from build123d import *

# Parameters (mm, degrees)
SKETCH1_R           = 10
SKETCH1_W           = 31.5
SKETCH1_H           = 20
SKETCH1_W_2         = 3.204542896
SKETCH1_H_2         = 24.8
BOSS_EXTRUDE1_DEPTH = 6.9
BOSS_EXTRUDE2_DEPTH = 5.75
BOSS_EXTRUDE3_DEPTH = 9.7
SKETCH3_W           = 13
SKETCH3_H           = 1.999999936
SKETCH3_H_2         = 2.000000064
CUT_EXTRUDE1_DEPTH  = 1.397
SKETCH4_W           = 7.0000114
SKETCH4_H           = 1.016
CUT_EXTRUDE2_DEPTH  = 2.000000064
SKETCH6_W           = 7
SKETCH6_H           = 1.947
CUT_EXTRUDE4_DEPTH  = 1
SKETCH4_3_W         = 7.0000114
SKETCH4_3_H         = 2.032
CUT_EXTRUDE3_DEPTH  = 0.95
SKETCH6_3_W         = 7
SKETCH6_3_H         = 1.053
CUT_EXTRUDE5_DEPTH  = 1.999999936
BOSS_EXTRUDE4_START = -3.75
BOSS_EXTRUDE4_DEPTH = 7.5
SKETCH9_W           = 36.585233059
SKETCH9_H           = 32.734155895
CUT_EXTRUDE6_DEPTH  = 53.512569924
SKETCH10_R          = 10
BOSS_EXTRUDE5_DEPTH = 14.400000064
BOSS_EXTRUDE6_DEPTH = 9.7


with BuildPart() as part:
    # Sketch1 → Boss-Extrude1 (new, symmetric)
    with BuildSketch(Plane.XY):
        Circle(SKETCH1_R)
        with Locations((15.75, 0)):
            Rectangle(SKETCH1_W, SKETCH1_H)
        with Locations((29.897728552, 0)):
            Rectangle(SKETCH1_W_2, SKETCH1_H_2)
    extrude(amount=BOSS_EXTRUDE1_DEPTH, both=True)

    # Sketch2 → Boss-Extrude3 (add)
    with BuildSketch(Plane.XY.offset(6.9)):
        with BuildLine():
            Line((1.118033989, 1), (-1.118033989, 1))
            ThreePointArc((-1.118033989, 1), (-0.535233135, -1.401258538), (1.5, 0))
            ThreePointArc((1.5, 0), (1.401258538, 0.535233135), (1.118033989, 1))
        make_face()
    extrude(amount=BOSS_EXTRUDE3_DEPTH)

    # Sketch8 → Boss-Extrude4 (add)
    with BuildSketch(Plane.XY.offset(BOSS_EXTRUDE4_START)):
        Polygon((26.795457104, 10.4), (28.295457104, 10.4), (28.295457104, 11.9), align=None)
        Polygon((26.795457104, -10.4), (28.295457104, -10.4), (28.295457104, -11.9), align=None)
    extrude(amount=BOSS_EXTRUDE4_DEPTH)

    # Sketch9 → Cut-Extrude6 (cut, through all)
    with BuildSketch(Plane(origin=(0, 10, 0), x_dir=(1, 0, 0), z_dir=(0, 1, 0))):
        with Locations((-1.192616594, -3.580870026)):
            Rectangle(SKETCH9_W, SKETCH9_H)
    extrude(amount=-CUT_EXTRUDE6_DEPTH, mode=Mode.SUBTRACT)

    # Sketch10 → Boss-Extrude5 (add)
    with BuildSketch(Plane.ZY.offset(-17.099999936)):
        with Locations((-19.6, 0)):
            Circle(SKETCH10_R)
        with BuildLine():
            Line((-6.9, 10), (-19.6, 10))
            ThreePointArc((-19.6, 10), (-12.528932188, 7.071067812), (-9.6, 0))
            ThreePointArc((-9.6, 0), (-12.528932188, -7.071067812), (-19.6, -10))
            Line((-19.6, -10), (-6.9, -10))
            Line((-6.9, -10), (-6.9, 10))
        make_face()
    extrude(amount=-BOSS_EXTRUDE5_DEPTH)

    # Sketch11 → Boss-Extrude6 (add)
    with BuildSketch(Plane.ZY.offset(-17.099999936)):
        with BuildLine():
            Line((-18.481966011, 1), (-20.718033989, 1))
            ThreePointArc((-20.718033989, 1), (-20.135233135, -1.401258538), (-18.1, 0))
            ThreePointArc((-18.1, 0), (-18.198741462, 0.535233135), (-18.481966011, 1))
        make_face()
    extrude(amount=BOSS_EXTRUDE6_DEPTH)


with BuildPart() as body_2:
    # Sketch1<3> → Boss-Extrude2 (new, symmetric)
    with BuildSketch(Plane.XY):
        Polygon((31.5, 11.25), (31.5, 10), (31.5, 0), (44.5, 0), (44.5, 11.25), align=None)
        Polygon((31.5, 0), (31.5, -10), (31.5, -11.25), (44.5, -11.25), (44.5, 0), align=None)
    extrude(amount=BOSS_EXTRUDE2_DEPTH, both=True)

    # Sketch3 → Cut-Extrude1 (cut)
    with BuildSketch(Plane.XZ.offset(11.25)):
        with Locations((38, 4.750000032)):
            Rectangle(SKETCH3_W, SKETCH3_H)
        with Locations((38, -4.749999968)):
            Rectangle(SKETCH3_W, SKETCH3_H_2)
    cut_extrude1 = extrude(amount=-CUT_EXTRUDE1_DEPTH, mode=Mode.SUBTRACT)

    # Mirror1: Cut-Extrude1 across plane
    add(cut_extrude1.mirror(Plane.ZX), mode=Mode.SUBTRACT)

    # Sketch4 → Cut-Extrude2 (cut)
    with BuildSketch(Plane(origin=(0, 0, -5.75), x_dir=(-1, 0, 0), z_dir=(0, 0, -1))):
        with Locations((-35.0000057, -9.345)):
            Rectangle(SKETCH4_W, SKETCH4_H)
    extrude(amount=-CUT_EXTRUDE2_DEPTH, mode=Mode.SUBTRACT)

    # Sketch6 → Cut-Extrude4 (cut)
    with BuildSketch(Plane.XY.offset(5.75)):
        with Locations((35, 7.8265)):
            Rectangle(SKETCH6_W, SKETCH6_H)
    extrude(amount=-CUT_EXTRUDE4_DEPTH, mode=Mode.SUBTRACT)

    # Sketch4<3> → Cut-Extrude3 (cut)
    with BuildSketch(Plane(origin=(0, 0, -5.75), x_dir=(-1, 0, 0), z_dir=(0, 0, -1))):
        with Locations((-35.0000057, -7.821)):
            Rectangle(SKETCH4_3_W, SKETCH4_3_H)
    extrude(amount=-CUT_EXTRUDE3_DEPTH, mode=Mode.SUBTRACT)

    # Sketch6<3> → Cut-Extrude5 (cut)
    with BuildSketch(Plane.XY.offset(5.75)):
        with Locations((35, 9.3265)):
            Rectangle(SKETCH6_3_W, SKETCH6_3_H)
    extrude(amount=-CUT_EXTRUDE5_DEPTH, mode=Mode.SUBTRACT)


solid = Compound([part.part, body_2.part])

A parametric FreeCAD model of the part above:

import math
import FreeCAD as App
import Part
import Sketcher

V = App.Vector
Q = App.Units.Quantity

doc = App.newDocument("Part")
params = doc.addObject("Spreadsheet::Sheet", "Params")
for row, (alias, value) in enumerate([
    ("sketch1_radius", "10 mm"),
    ("sketch1_height", "2.4 mm"),
    ("pad1_length", "13.8 mm"),
    ("sketch2_radius", "1.5 mm"),
    ("pad2_length", "9.7 mm"),
    ("sketch3_width", "1.5 mm"),
    ("pad3_length", "7.5 mm"),
    ("sketch5_radius", "10 mm"),
    ("sketch5_height", "12.7 mm"),
    ("pad4_length", "14.4 mm"),
    ("sketch6_radius", "1.5 mm"),
    ("pad5_length", "9.7 mm"),
    ("sketch7_width", "13 mm"),
    ("sketch7_height", "22.5 mm"),
    ("pad6_length", "11.5 mm"),
    ("sketch8_width", "13 mm"),
    ("sketch8_height", "2 mm"),
    ("pocket2_length", "1.397 mm"),
    ("pocket3_length", "2 mm"),
    ("sketch10_width", "7 mm"),
    ("pocket4_length", "1 mm"),
    ("pocket5_length", "0.95 mm"),
    ("sketch12_width", "7 mm"),
    ("pocket6_length", "2 mm"),
], start=1):
    params.set(f"A{row}", alias)
    params.set(f"B{row}", "=" + value)
    params.setAlias(f"B{row}", alias)

body = doc.addObject("PartDesign::Body", "Body")

# Sketch on XY plane
sketch1 = doc.addObject("Sketcher::SketchObject", "Sketch")
body.addObject(sketch1)
sketch1.AttachmentSupport = (doc.XY_Plane, [""])
sketch1.MapMode = "FlatFace"
sketch1.addGeometry([
    Part.ArcOfCircle(Part.Circle(V(0, 0, 0), V(0, 0, 1), 10), math.radians(90), math.radians(270)),  # 0
    Part.LineSegment(V(0, -10, 0), V(28.3, -10, 0)),  # 1
    Part.LineSegment(V(28.3, -10, 0), V(28.3, -12.4, 0)),  # 2
    Part.LineSegment(V(28.3, -12.4, 0), V(31.5, -12.4, 0)),  # 3
    Part.LineSegment(V(31.5, -12.4, 0), V(31.5, 12.4, 0)),  # 4
    Part.LineSegment(V(31.5, 12.4, 0), V(28.3, 12.4, 0)),  # 5
    Part.LineSegment(V(28.3, 12.4, 0), V(28.3, 10, 0)),  # 6
    Part.LineSegment(V(28.3, 10, 0), V(0, 10, 0)),  # 7
], False)
sketch1.addConstraint([
    Sketcher.Constraint("Tangent", 0, 2, 1, 1),
    Sketcher.Constraint("Coincident", 1, 2, 2, 1),
    Sketcher.Constraint("Coincident", 2, 2, 3, 1),
    Sketcher.Constraint("Coincident", 3, 2, 4, 1),
    Sketcher.Constraint("Coincident", 4, 2, 5, 1),
    Sketcher.Constraint("Coincident", 5, 2, 6, 1),
    Sketcher.Constraint("Coincident", 6, 2, 7, 1),
    Sketcher.Constraint("Tangent", 7, 2, 0, 1),
    Sketcher.Constraint("Horizontal", 1),
    Sketcher.Constraint("Vertical", 2),
    Sketcher.Constraint("Horizontal", 3),
    Sketcher.Constraint("Vertical", 4),
    Sketcher.Constraint("Horizontal", 5),
    Sketcher.Constraint("Vertical", 6),
    Sketcher.Constraint("Horizontal", 7),
    Sketcher.Constraint("Coincident", 0, 3, -1, 1),
    Sketcher.Constraint("Symmetric", 2, 2, 5, 2, -1),
    Sketcher.Constraint("Radius", 0, Q("10 mm")),
    Sketcher.Constraint("DistanceY", 2, 2, 2, 1, Q("2.4 mm")),
    Sketcher.Constraint("DistanceX", -1, 1, 3, 2, Q("31.5 mm")),
    Sketcher.Constraint("DistanceX", 1, 1, 1, 2, Q("28.295457 mm")),
])
sketch1.setExpression("Constraints[17]", "Params.sketch1_radius")
sketch1.setExpression("Constraints[18]", "Params.sketch1_height")
pad1 = doc.addObject("PartDesign::Pad", "Pad")
body.addObject(pad1)
pad1.Profile = sketch1
pad1.setExpression("Length", "Params.pad1_length")
pad1.Midplane = True

# Sketch on XY plane
sketch2 = doc.addObject("Sketcher::SketchObject", "Sketch001")
body.addObject(sketch2)
sketch2.AttachmentSupport = (doc.XY_Plane, [""])
sketch2.MapMode = "FlatFace"
sketch2.AttachmentOffset = App.Placement(V(0, 0, 6.9), App.Rotation())
sketch2.addGeometry([
    Part.LineSegment(V(1.1, 1, 0), V(-1.1, 1, 0)),
    Part.ArcOfCircle(Part.Circle(V(0, 0, 0), V(0, 0, 1), 1.5), math.radians(138), math.radians(360)),
    Part.ArcOfCircle(Part.Circle(V(0, 0, 0), V(0, 0, 1), 1.5), math.radians(0), math.radians(42)),
], False)
sketch2.addConstraint([
    Sketcher.Constraint("Coincident", 0, 2, 1, 1),
    Sketcher.Constraint("Tangent", 1, 2, 2, 1),
    Sketcher.Constraint("Coincident", 2, 2, 0, 1),
    Sketcher.Constraint("Horizontal", 0),
    Sketcher.Constraint("Coincident", 1, 3, -1, 1),
    Sketcher.Constraint("Equal", 1, 2),
    Sketcher.Constraint("PointOnObject", 1, 2, -1),
    Sketcher.Constraint("Radius", 1, Q("1.5 mm")),
    Sketcher.Constraint("DistanceY", -1, 1, 0, 2, Q("1 mm")),
])
sketch2.setExpression("Constraints[7]", "Params.sketch2_radius")
pad2 = doc.addObject("PartDesign::Pad", "Pad001")
body.addObject(pad2)
pad2.Profile = sketch2
pad2.setExpression("Length", "Params.pad2_length")

# Sketch on XY plane
sketch3 = doc.addObject("Sketcher::SketchObject", "Sketch002")
body.addObject(sketch3)
sketch3.AttachmentSupport = (doc.XY_Plane, [""])
sketch3.MapMode = "FlatFace"
sketch3.AttachmentOffset = App.Placement(V(0, 0, -3.75), App.Rotation())
sketch3.addGeometry([
    Part.LineSegment(V(26.8, 10.4, 0), V(28.3, 10.4, 0)),  # 0
    Part.LineSegment(V(28.3, 10.4, 0), V(28.3, 11.9, 0)),  # 1
    Part.LineSegment(V(28.3, 11.9, 0), V(26.8, 10.4, 0)),  # 2
    Part.LineSegment(V(28.3, -10.4, 0), V(26.8, -10.4, 0)),  # 3
    Part.LineSegment(V(26.8, -10.4, 0), V(28.3, -11.9, 0)),  # 4
    Part.LineSegment(V(28.3, -11.9, 0), V(28.3, -10.4, 0)),  # 5
], False)
sketch3.addConstraint([
    Sketcher.Constraint("Coincident", 0, 2, 1, 1),
    Sketcher.Constraint("Coincident", 1, 2, 2, 1),
    Sketcher.Constraint("Coincident", 2, 2, 0, 1),
    Sketcher.Constraint("Coincident", 3, 2, 4, 1),
    Sketcher.Constraint("Coincident", 4, 2, 5, 1),
    Sketcher.Constraint("Coincident", 5, 2, 3, 1),
    Sketcher.Constraint("Horizontal", 0),
    Sketcher.Constraint("Vertical", 1),
    Sketcher.Constraint("Horizontal", 3),
    Sketcher.Constraint("Vertical", 5),
    Sketcher.Constraint("Symmetric", 2, 2, 3, 2, -1),
    Sketcher.Constraint("Symmetric", 1, 2, 4, 2, -1),
    Sketcher.Constraint("Perpendicular", 2, 4),
    Sketcher.Constraint("DistanceX", 0, 1, 0, 2, Q("1.5 mm")),
    Sketcher.Constraint("DistanceY", -1, 1, 0, 2, Q("10.4 mm")),
    Sketcher.Constraint("DistanceX", -1, 1, 0, 2, Q("28.295457 mm")),
])
sketch3.setExpression("Constraints[13]", "Params.sketch3_width")
pad3 = doc.addObject("PartDesign::Pad", "Pad002")
body.addObject(pad3)
pad3.Profile = sketch3
pad3.setExpression("Length", "Params.pad3_length")

# Sketch on XZ plane
sketch4 = doc.addObject("Sketcher::SketchObject", "Sketch003")
body.addObject(sketch4)
sketch4.AttachmentSupport = (doc.XZ_Plane, [""])
sketch4.MapMode = "FlatFace"
sketch4.AttachmentOffset = App.Placement(V(0, 0, -10), App.Rotation())
sketch4.addGeometry([
    Part.LineSegment(V(-19, -13, 0), V(-19, 20, 0)),
    Part.LineSegment(V(-19, 20, 0), V(17, 20, 0)),
    Part.LineSegment(V(17, 20, 0), V(17, -13, 0)),
    Part.LineSegment(V(17, -13, 0), V(-19, -13, 0)),
], False)
sketch4.addConstraint([
    Sketcher.Constraint("Coincident", 0, 2, 1, 1),
    Sketcher.Constraint("Coincident", 1, 2, 2, 1),
    Sketcher.Constraint("Coincident", 2, 2, 3, 1),
    Sketcher.Constraint("Coincident", 3, 2, 0, 1),
    Sketcher.Constraint("Vertical", 0),
    Sketcher.Constraint("Horizontal", 1),
    Sketcher.Constraint("Vertical", 2),
    Sketcher.Constraint("Horizontal", 3),
    Sketcher.Constraint("DistanceX", -1, 1, 1, 2, Q("17.1 mm")),
    Sketcher.Constraint("DistanceX", 1, 1, 1, 2, Q("36.585233 mm")),
    Sketcher.Constraint("DistanceY", 0, 1, 0, 2, Q("32.734156 mm")),
    Sketcher.Constraint("DistanceY", -1, 1, 0, 2, Q("19.947948 mm")),
])
pocket1 = doc.addObject("PartDesign::Pocket", "Pocket")
body.addObject(pocket1)
pocket1.Profile = sketch4
pocket1.Type = "ThroughAll"
pocket1.Reversed = True

# Sketch on YZ plane
sketch5 = doc.addObject("Sketcher::SketchObject", "Sketch004")
body.addObject(sketch5)
sketch5.AttachmentSupport = (doc.YZ_Plane, [""])
sketch5.MapMode = "FlatFace"
sketch5.AttachmentOffset = App.Placement(V(0, 0, 17.1), App.Rotation())
sketch5.addGeometry([
    Part.ArcOfCircle(Part.Circle(V(0, -20, 0), V(0, 0, 1), 10), math.radians(180), math.radians(360)),
    Part.LineSegment(V(-10, -20, 0), V(-10, -7, 0)),
    Part.LineSegment(V(-10, -7, 0), V(10, -7, 0)),
    Part.LineSegment(V(10, -7, 0), V(10, -20, 0)),
], False)
sketch5.addConstraint([
    Sketcher.Constraint("Tangent", 0, 1, 1, 1),
    Sketcher.Constraint("Coincident", 1, 2, 2, 1),
    Sketcher.Constraint("Coincident", 2, 2, 3, 1),
    Sketcher.Constraint("Tangent", 3, 2, 0, 2),
    Sketcher.Constraint("Vertical", 1),
    Sketcher.Constraint("Horizontal", 2),
    Sketcher.Constraint("Vertical", 3),
    Sketcher.Constraint("PointOnObject", 0, 3, -2),
    Sketcher.Constraint("Radius", 0, Q("10 mm")),
    Sketcher.Constraint("DistanceY", 1, 1, 1, 2, Q("12.7 mm")),
    Sketcher.Constraint("DistanceY", 0, 3, -1, 1, Q("19.6 mm")),
])
sketch5.setExpression("Constraints[8]", "Params.sketch5_radius")
sketch5.setExpression("Constraints[9]", "Params.sketch5_height")
pad4 = doc.addObject("PartDesign::Pad", "Pad003")
body.addObject(pad4)
pad4.Profile = sketch5
pad4.setExpression("Length", "Params.pad4_length")

# Sketch on YZ plane
sketch6 = doc.addObject("Sketcher::SketchObject", "Sketch005")
body.addObject(sketch6)
sketch6.AttachmentSupport = (doc.YZ_Plane, [""])
sketch6.MapMode = "FlatFace"
sketch6.AttachmentOffset = App.Placement(V(0, 0, 17.1), App.Rotation())
sketch6.addGeometry([
    Part.LineSegment(V(1, -18.5, 0), V(1, -20.7, 0)),
    Part.ArcOfCircle(Part.Circle(V(0, -19.6, 0), V(0, 0, 1), 1.5), math.radians(90), math.radians(312)),
    Part.ArcOfCircle(Part.Circle(V(0, -19.6, 0), V(0, 0, 1), 1.5), math.radians(48), math.radians(90)),
], False)
sketch6.addConstraint([
    Sketcher.Constraint("Coincident", 0, 2, 1, 2),
    Sketcher.Constraint("Tangent", 1, 1, 2, 2),
    Sketcher.Constraint("Coincident", 2, 1, 0, 1),
    Sketcher.Constraint("Vertical", 0),
    Sketcher.Constraint("Equal", 1, 2),
    Sketcher.Constraint("PointOnObject", 1, 3, -2),
    Sketcher.Constraint("PointOnObject", 1, 1, -2),
    Sketcher.Constraint("Radius", 1, Q("1.5 mm")),
    Sketcher.Constraint("DistanceX", -1, 1, 0, 2, Q("1 mm")),
    Sketcher.Constraint("DistanceY", 1, 3, -1, 1, Q("19.6 mm")),
])
sketch6.setExpression("Constraints[7]", "Params.sketch6_radius")
pad5 = doc.addObject("PartDesign::Pad", "Pad004")
body.addObject(pad5)
pad5.Profile = sketch6
pad5.setExpression("Length", "Params.pad5_length")
pad5.Reversed = True
body2 = doc.addObject("PartDesign::Body", "Body001")

# Sketch on XY plane
sketch7 = doc.addObject("Sketcher::SketchObject", "Sketch006")
body2.addObject(sketch7)
sketch7.AttachmentSupport = (doc.getObject("XY_Plane001"), [""])
sketch7.MapMode = "FlatFace"
sketch7.addGeometry([
    Part.LineSegment(V(32, 11, 0), V(32, -11, 0)),
    Part.LineSegment(V(32, -11, 0), V(44, -11, 0)),
    Part.LineSegment(V(44, -11, 0), V(44, 11, 0)),
    Part.LineSegment(V(44, 11, 0), V(32, 11, 0)),
], False)
sketch7.addConstraint([
    Sketcher.Constraint("Coincident", 0, 2, 1, 1),
    Sketcher.Constraint("Coincident", 1, 2, 2, 1),
    Sketcher.Constraint("Coincident", 2, 2, 3, 1),
    Sketcher.Constraint("Coincident", 3, 2, 0, 1),
    Sketcher.Constraint("Vertical", 0),
    Sketcher.Constraint("Horizontal", 1),
    Sketcher.Constraint("Vertical", 2),
    Sketcher.Constraint("Horizontal", 3),
    Sketcher.Constraint("DistanceX", 1, 1, 1, 2, Q("13 mm")),
    Sketcher.Constraint("DistanceY", 0, 2, 0, 1, Q("22.5 mm")),
    Sketcher.Constraint("DistanceX", -1, 1, 0, 2, Q("31.5 mm")),
    Sketcher.Constraint("DistanceY", 0, 2, -1, 1, Q("11.25 mm")),
])
sketch7.setExpression("Constraints[8]", "Params.sketch7_width")
sketch7.setExpression("Constraints[9]", "Params.sketch7_height")
pad6 = doc.addObject("PartDesign::Pad", "Pad005")
body2.addObject(pad6)
pad6.Profile = sketch7
pad6.setExpression("Length", "Params.pad6_length")
pad6.Midplane = True

# Sketch on XZ plane
sketch8 = doc.addObject("Sketcher::SketchObject", "Sketch007")
body2.addObject(sketch8)
sketch8.AttachmentSupport = (doc.getObject("XZ_Plane001"), [""])
sketch8.MapMode = "FlatFace"
sketch8.AttachmentOffset = App.Placement(V(0, 0, 11.25), App.Rotation())
sketch8.addGeometry([
    Part.LineSegment(V(31.5, 5.8, 0), V(31.5, 3.8, 0)),  # 0
    Part.LineSegment(V(31.5, 3.8, 0), V(44.5, 3.8, 0)),  # 1
    Part.LineSegment(V(44.5, 3.8, 0), V(44.5, 5.8, 0)),  # 2
    Part.LineSegment(V(44.5, 5.8, 0), V(31.5, 5.8, 0)),  # 3
    Part.LineSegment(V(31.5, -3.7, 0), V(31.5, -5.8, 0)),  # 4
    Part.LineSegment(V(31.5, -5.8, 0), V(44.5, -5.8, 0)),  # 5
    Part.LineSegment(V(44.5, -5.8, 0), V(44.5, -3.7, 0)),  # 6
    Part.LineSegment(V(44.5, -3.7, 0), V(31.5, -3.7, 0)),  # 7
], False)
sketch8.addConstraint([
    Sketcher.Constraint("Coincident", 0, 2, 1, 1),
    Sketcher.Constraint("Coincident", 1, 2, 2, 1),
    Sketcher.Constraint("Coincident", 2, 2, 3, 1),
    Sketcher.Constraint("Coincident", 3, 2, 0, 1),
    Sketcher.Constraint("Coincident", 4, 2, 5, 1),
    Sketcher.Constraint("Coincident", 5, 2, 6, 1),
    Sketcher.Constraint("Coincident", 6, 2, 7, 1),
    Sketcher.Constraint("Coincident", 7, 2, 4, 1),
    Sketcher.Constraint("Vertical", 0),
    Sketcher.Constraint("Horizontal", 1),
    Sketcher.Constraint("Vertical", 2),
    Sketcher.Constraint("Horizontal", 3),
    Sketcher.Constraint("Vertical", 4),
    Sketcher.Constraint("Horizontal", 5),
    Sketcher.Constraint("Vertical", 6),
    Sketcher.Constraint("Horizontal", 7),
    Sketcher.Constraint("Symmetric", 3, 2, 4, 2, -1),
    Sketcher.Constraint("Symmetric", 1, 2, 6, 2, -1),
    Sketcher.Constraint("DistanceX", 1, 1, 1, 2, Q("13 mm")),
    Sketcher.Constraint("DistanceY", 0, 2, 0, 1, Q("2 mm")),
    Sketcher.Constraint("DistanceX", -1, 1, 0, 2, Q("31.5 mm")),
    Sketcher.Constraint("DistanceY", 4, 2, 0, 2, Q("9.5 mm")),
])
sketch8.setExpression("Constraints[18]", "Params.sketch8_width")
sketch8.setExpression("Constraints[19]", "Params.sketch8_height")
pocket2 = doc.addObject("PartDesign::Pocket", "Pocket001")
body2.addObject(pocket2)
pocket2.Profile = sketch8
pocket2.setExpression("Length", "Params.pocket2_length")
doc.recompute()

mirrored = doc.addObject("PartDesign::Mirrored", "Mirrored")
body2.addObject(mirrored)
mirrored.Originals = [pocket2]
mirrored.MirrorPlane = (doc.getObject("XZ_Plane001"), [""])
body2.Tip = mirrored

# Sketch on XY plane
sketch9 = doc.addObject("Sketcher::SketchObject", "Sketch008")
body2.addObject(sketch9)
sketch9.AttachmentSupport = (doc.getObject("XY_Plane001"), [""])
sketch9.MapMode = "FlatFace"
sketch9.AttachmentOffset = App.Placement(V(0, 0, -5.75), App.Rotation())
sketch9.addGeometry([
    Part.LineSegment(V(38.5, -8.8, 0), V(38.5, -9.9, 0)),
    Part.LineSegment(V(38.5, -9.9, 0), V(31.5, -9.9, 0)),
    Part.LineSegment(V(31.5, -9.9, 0), V(31.5, -8.8, 0)),
    Part.LineSegment(V(31.5, -8.8, 0), V(38.5, -8.8, 0)),
], False)
sketch9.addConstraint([
    Sketcher.Constraint("Coincident", 0, 2, 1, 1),
    Sketcher.Constraint("Coincident", 1, 2, 2, 1),
    Sketcher.Constraint("Coincident", 2, 2, 3, 1),
    Sketcher.Constraint("Coincident", 3, 2, 0, 1),
    Sketcher.Constraint("Vertical", 0),
    Sketcher.Constraint("Horizontal", 1),
    Sketcher.Constraint("Vertical", 2),
    Sketcher.Constraint("Horizontal", 3),
    Sketcher.Constraint("DistanceX", -1, 1, 1, 2, Q("31.5 mm")),
    Sketcher.Constraint("DistanceY", 0, 2, 0, 1, Q("1.016 mm")),
    Sketcher.Constraint("DistanceY", 0, 2, -1, 1, Q("9.853 mm")),
    Sketcher.Constraint("DistanceX", 1, 2, 1, 1, Q("7.000011 mm")),
])
pocket3 = doc.addObject("PartDesign::Pocket", "Pocket002")
body2.addObject(pocket3)
pocket3.Profile = sketch9
pocket3.setExpression("Length", "Params.pocket3_length")
pocket3.Reversed = True

# Sketch on XY plane
sketch10 = doc.addObject("Sketcher::SketchObject", "Sketch009")
body2.addObject(sketch10)
sketch10.AttachmentSupport = (doc.getObject("XY_Plane001"), [""])
sketch10.MapMode = "FlatFace"
sketch10.AttachmentOffset = App.Placement(V(0, 0, 5.75), App.Rotation())
sketch10.addGeometry([
    Part.LineSegment(V(31.5, 8.8, 0), V(31.5, 6.9, 0)),
    Part.LineSegment(V(31.5, 6.9, 0), V(38.5, 6.9, 0)),
    Part.LineSegment(V(38.5, 6.9, 0), V(38.5, 8.8, 0)),
    Part.LineSegment(V(38.5, 8.8, 0), V(31.5, 8.8, 0)),
], False)
sketch10.addConstraint([
    Sketcher.Constraint("Coincident", 0, 2, 1, 1),
    Sketcher.Constraint("Coincident", 1, 2, 2, 1),
    Sketcher.Constraint("Coincident", 2, 2, 3, 1),
    Sketcher.Constraint("Coincident", 3, 2, 0, 1),
    Sketcher.Constraint("Vertical", 0),
    Sketcher.Constraint("Horizontal", 1),
    Sketcher.Constraint("Vertical", 2),
    Sketcher.Constraint("Horizontal", 3),
    Sketcher.Constraint("DistanceX", 1, 1, 1, 2, Q("7 mm")),
    Sketcher.Constraint("DistanceX", -1, 1, 0, 2, Q("31.5 mm")),
    Sketcher.Constraint("DistanceY", -1, 1, 2, 2, Q("8.8 mm")),
    Sketcher.Constraint("DistanceY", 0, 2, 0, 1, Q("1.947 mm")),
])
sketch10.setExpression("Constraints[8]", "Params.sketch10_width")
pocket4 = doc.addObject("PartDesign::Pocket", "Pocket003")
body2.addObject(pocket4)
pocket4.Profile = sketch10
pocket4.setExpression("Length", "Params.pocket4_length")

# Sketch on XY plane
sketch11 = doc.addObject("Sketcher::SketchObject", "Sketch010")
body2.addObject(sketch11)
sketch11.AttachmentSupport = (doc.getObject("XY_Plane001"), [""])
sketch11.MapMode = "FlatFace"
sketch11.AttachmentOffset = App.Placement(V(0, 0, -5.75), App.Rotation())
sketch11.addGeometry([
    Part.LineSegment(V(38.5, -6.8, 0), V(38.5, -8.8, 0)),
    Part.LineSegment(V(38.5, -8.8, 0), V(31.5, -8.8, 0)),
    Part.LineSegment(V(31.5, -8.8, 0), V(31.5, -6.8, 0)),
    Part.LineSegment(V(31.5, -6.8, 0), V(38.5, -6.8, 0)),
], False)
sketch11.addConstraint([
    Sketcher.Constraint("Coincident", 0, 2, 1, 1),
    Sketcher.Constraint("Coincident", 1, 2, 2, 1),
    Sketcher.Constraint("Coincident", 2, 2, 3, 1),
    Sketcher.Constraint("Coincident", 3, 2, 0, 1),
    Sketcher.Constraint("Vertical", 0),
    Sketcher.Constraint("Horizontal", 1),
    Sketcher.Constraint("Vertical", 2),
    Sketcher.Constraint("Horizontal", 3),
    Sketcher.Constraint("DistanceX", -1, 1, 1, 2, Q("31.5 mm")),
    Sketcher.Constraint("DistanceY", 0, 2, 0, 1, Q("2.032 mm")),
    Sketcher.Constraint("DistanceY", 0, 2, -1, 1, Q("8.837 mm")),
    Sketcher.Constraint("DistanceX", 1, 2, 1, 1, Q("7.000011 mm")),
])
pocket5 = doc.addObject("PartDesign::Pocket", "Pocket004")
body2.addObject(pocket5)
pocket5.Profile = sketch11
pocket5.setExpression("Length", "Params.pocket5_length")
pocket5.Reversed = True

# Sketch on XY plane
sketch12 = doc.addObject("Sketcher::SketchObject", "Sketch011")
body2.addObject(sketch12)
sketch12.AttachmentSupport = (doc.getObject("XY_Plane001"), [""])
sketch12.MapMode = "FlatFace"
sketch12.AttachmentOffset = App.Placement(V(0, 0, 5.75), App.Rotation())
sketch12.addGeometry([
    Part.LineSegment(V(31.5, 9.9, 0), V(31.5, 8.8, 0)),
    Part.LineSegment(V(31.5, 8.8, 0), V(38.5, 8.8, 0)),
    Part.LineSegment(V(38.5, 8.8, 0), V(38.5, 9.9, 0)),
    Part.LineSegment(V(38.5, 9.9, 0), V(31.5, 9.9, 0)),
], False)
sketch12.addConstraint([
    Sketcher.Constraint("Coincident", 0, 2, 1, 1),
    Sketcher.Constraint("Coincident", 1, 2, 2, 1),
    Sketcher.Constraint("Coincident", 2, 2, 3, 1),
    Sketcher.Constraint("Coincident", 3, 2, 0, 1),
    Sketcher.Constraint("Vertical", 0),
    Sketcher.Constraint("Horizontal", 1),
    Sketcher.Constraint("Vertical", 2),
    Sketcher.Constraint("Horizontal", 3),
    Sketcher.Constraint("DistanceX", 1, 1, 1, 2, Q("7 mm")),
    Sketcher.Constraint("DistanceX", -1, 1, 0, 2, Q("31.5 mm")),
    Sketcher.Constraint("DistanceY", -1, 1, 0, 2, Q("8.8 mm")),
    Sketcher.Constraint("DistanceY", 0, 2, 0, 1, Q("1.053 mm")),
])
sketch12.setExpression("Constraints[8]", "Params.sketch12_width")
pocket6 = doc.addObject("PartDesign::Pocket", "Pocket005")
body2.addObject(pocket6)
pocket6.Profile = sketch12
pocket6.setExpression("Length", "Params.pocket6_length")

doc.recompute()
